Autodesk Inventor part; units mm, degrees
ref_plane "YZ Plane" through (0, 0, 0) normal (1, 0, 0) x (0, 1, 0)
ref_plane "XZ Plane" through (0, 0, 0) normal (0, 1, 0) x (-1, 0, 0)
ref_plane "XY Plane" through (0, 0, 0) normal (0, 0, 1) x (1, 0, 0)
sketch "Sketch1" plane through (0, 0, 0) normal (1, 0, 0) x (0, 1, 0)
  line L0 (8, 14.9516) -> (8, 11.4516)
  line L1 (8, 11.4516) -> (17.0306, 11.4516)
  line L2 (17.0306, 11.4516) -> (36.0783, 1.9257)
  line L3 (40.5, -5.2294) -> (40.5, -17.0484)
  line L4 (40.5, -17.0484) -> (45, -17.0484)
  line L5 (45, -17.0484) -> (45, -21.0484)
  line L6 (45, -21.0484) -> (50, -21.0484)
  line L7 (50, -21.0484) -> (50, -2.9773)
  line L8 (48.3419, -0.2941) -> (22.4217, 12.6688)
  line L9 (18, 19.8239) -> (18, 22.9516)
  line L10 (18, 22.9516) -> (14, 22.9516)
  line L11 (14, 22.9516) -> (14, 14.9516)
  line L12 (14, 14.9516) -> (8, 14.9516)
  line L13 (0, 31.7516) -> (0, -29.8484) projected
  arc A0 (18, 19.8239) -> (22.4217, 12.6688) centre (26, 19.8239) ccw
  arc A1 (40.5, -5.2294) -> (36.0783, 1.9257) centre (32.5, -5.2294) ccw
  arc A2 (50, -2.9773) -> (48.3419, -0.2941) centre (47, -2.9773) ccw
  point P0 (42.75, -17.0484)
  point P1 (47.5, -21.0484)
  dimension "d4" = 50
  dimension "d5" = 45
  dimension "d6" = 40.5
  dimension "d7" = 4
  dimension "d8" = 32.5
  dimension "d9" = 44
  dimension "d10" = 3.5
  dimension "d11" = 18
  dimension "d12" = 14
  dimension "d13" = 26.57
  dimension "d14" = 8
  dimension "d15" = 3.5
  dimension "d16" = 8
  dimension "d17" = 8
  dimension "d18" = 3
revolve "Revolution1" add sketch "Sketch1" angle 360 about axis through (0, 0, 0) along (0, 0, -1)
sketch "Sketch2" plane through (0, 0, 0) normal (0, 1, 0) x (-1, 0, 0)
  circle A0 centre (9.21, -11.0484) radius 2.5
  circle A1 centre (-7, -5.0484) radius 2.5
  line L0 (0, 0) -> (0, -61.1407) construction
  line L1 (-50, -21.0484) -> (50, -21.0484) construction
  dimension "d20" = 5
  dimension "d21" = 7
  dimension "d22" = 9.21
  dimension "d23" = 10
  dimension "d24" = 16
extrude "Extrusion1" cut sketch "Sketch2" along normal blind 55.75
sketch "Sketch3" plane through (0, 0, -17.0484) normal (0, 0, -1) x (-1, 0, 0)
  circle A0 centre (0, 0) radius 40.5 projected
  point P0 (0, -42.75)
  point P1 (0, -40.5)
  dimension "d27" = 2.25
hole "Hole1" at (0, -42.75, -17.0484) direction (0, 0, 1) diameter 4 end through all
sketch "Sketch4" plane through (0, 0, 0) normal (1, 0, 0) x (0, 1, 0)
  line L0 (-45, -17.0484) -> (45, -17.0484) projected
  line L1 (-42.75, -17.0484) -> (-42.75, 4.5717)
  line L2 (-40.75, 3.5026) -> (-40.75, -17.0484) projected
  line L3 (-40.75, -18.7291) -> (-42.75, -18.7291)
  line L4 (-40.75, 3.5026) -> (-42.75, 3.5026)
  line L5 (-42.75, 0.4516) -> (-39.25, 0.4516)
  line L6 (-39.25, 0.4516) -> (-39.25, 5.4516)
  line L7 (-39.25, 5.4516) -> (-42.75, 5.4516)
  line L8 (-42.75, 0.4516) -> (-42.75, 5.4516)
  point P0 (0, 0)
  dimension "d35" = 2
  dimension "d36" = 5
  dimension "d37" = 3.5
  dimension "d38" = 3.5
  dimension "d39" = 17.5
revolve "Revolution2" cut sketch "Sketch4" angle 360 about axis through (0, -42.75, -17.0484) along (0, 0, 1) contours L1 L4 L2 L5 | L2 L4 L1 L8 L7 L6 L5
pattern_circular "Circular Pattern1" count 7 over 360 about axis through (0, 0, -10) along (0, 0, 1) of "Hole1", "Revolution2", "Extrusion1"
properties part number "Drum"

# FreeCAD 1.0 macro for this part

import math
import FreeCAD as App
import Part
import Sketcher

V = App.Vector
Q = App.Units.Quantity

doc = App.newDocument("Part")
body = doc.addObject("PartDesign::Body", "Body")

# Sketch on YZ plane
sketch1 = body.newObject("Sketcher::SketchObject", "Sketch")
sketch1.AttachmentSupport = (doc.getObject("YZ_Plane"), [""])
sketch1.MapMode = "FlatFace"
sketch1.addGeometry(Part.LineSegment(V(14, 15, 0), V(8, 15, 0)), False)
sketch1.addGeometry(Part.LineSegment(V(8, 15, 0), V(8, 11.5, 0)), False)
sketch1.addGeometry(Part.LineSegment(V(8, 11.5, 0), V(17, 11.5, 0)), False)
sketch1.addGeometry(Part.LineSegment(V(17, 11.5, 0), V(36.1, 1.9, 0)), False)
sketch1.addGeometry(Part.ArcOfCircle(Part.Circle(V(32.5, -5.2, 0), V(0, 0, 1), 8), math.radians(0), math.radians(63)), False)
sketch1.addGeometry(Part.LineSegment(V(40.5, -5.2, 0), V(40.5, -17, 0)), False)
sketch1.addGeometry(Part.LineSegment(V(40.5, -17, 0), V(45, -17, 0)), False)
sketch1.addGeometry(Part.LineSegment(V(45, -17, 0), V(45, -21, 0)), False)
sketch1.addGeometry(Part.LineSegment(V(45, -21, 0), V(50, -21, 0)), False)
sketch1.addGeometry(Part.LineSegment(V(50, -21, 0), V(50, -3, 0)), False)
sketch1.addGeometry(Part.ArcOfCircle(Part.Circle(V(47, -3, 0), V(0, 0, 1), 3), math.radians(0), math.radians(63)), False)
sketch1.addGeometry(Part.LineSegment(V(48.3, -0.3, 0), V(22.4, 12.7, 0)), False)
sketch1.addGeometry(Part.ArcOfCircle(Part.Circle(V(26, 19.8, 0), V(0, 0, 1), 8), math.radians(180), math.radians(243)), False)
sketch1.addGeometry(Part.LineSegment(V(18, 19.8, 0), V(18, 23, 0)), False)
sketch1.addGeometry(Part.LineSegment(V(18, 23, 0), V(14, 23, 0)), False)
sketch1.addGeometry(Part.LineSegment(V(14, 23, 0), V(14, 15, 0)), False)
sketch1.addConstraint(Sketcher.Constraint("Coincident", 0, 2, 1, 1))
sketch1.addConstraint(Sketcher.Constraint("Coincident", 1, 2, 2, 1))
sketch1.addConstraint(Sketcher.Constraint("Coincident", 2, 2, 3, 1))
sketch1.addConstraint(Sketcher.Constraint("Tangent", 3, 2, 4, 2))
sketch1.addConstraint(Sketcher.Constraint("Tangent", 4, 1, 5, 1))
sketch1.addConstraint(Sketcher.Constraint("Coincident", 5, 2, 6, 1))
sketch1.addConstraint(Sketcher.Constraint("Coincident", 6, 2, 7, 1))
sketch1.addConstraint(Sketcher.Constraint("Coincident", 7, 2, 8, 1))
sketch1.addConstraint(Sketcher.Constraint("Coincident", 8, 2, 9, 1))
sketch1.addConstraint(Sketcher.Constraint("Tangent", 9, 2, 10, 1))
sketch1.addConstraint(Sketcher.Constraint("Tangent", 10, 2, 11, 1))
sketch1.addConstraint(Sketcher.Constraint("Tangent", 11, 2, 12, 2))
sketch1.addConstraint(Sketcher.Constraint("Tangent", 12, 1, 13, 1))
sketch1.addConstraint(Sketcher.Constraint("Coincident", 13, 2, 14, 1))
sketch1.addConstraint(Sketcher.Constraint("Coincident", 14, 2, 15, 1))
sketch1.addConstraint(Sketcher.Constraint("Coincident", 15, 2, 0, 1))
sketch1.addConstraint(Sketcher.Constraint("Horizontal", 0))
sketch1.addConstraint(Sketcher.Constraint("Vertical", 1))
sketch1.addConstraint(Sketcher.Constraint("Horizontal", 2))
sketch1.addConstraint(Sketcher.Constraint("Vertical", 5))
sketch1.addConstraint(Sketcher.Constraint("Horizontal", 6))
sketch1.addConstraint(Sketcher.Constraint("Vertical", 7))
sketch1.addConstraint(Sketcher.Constraint("Horizontal", 8))
sketch1.addConstraint(Sketcher.Constraint("Vertical", 9))
sketch1.addConstraint(Sketcher.Constraint("Vertical", 13))
sketch1.addConstraint(Sketcher.Constraint("Horizontal", 14))
sketch1.addConstraint(Sketcher.Constraint("Vertical", 15))
sketch1.addConstraint(Sketcher.Constraint("Equal", 4, 12))
sketch1.addConstraint(Sketcher.Constraint("Parallel", 3, 11))
sketch1.addConstraint(Sketcher.Constraint("Equal", 14, 7))
sketch1.addConstraint(Sketcher.Constraint("Radius", 4, Q("8 mm")))
sketch1.addConstraint(Sketcher.Constraint("Radius", 10, Q("3 mm")))
sketch1.addConstraint(Sketcher.Constraint("DistanceX", 14, 2, 14, 1, Q("4 mm")))
sketch1.addConstraint(Sketcher.Constraint("DistanceY", 15, 2, 15, 1, Q("8 mm")))
sketch1.addConstraint(Sketcher.Constraint("DistanceY", 1, 2, 1, 1, Q("3.5 mm")))
sketch1.addConstraint(Sketcher.Constraint("DistanceX", -1, 1, 0, 2, Q("8 mm")))
sketch1.addConstraint(Sketcher.Constraint("DistanceX", -1, 1, 6, 2, Q("45 mm")))
sketch1.addConstraint(Sketcher.Constraint("DistanceX", -1, 1, 8, 2, Q("50 mm")))
sketch1.addConstraint(Sketcher.Constraint("DistanceX", -1, 1, 12, 1, Q("18 mm")))
sketch1.addConstraint(Sketcher.Constraint("DistanceX", -1, 1, 4, 3, Q("32.5 mm")))
sketch1.addConstraint(Sketcher.Constraint("Angle", 3, Q("-26.57 deg")))
sketch1.addConstraint(Sketcher.Constraint("DistanceY", 5, 2, 2, 2, Q("28.5 mm")))
sketch1.addConstraint(Sketcher.Constraint("DistanceY", 5, 2, 5, 1, Q("11.819 mm")))
sketch1.addConstraint(Sketcher.Constraint("DistanceY", 9, 1, 9, 2, Q("18.071 mm")))
sketch1.addConstraint(Sketcher.Constraint("DistanceY", -1, 1, 12, 3, Q("19.824 mm")))
revolution = body.newObject("PartDesign::Revolution", "Revolution")
revolution.Profile = sketch1
revolution.ReferenceAxis = (sketch1, ["V_Axis"])
revolution.Angle = 360

# Sketch on XZ plane
sketch2 = body.newObject("Sketcher::SketchObject", "Sketch001")
sketch2.AttachmentSupport = (doc.getObject("XZ_Plane"), [""])
sketch2.MapMode = "FlatFace"
sketch2.addGeometry(Part.Circle(V(-9.2, -11, 0), V(0, 0, 1), 2.5), False)
sketch2.addGeometry(Part.Circle(V(7, -5, 0), V(0, 0, 1), 2.5), False)
sketch2.addConstraint(Sketcher.Constraint("Equal", 0, 1))
sketch2.addConstraint(Sketcher.Constraint("Diameter", 0, Q("5 mm")))
sketch2.addConstraint(Sketcher.Constraint("DistanceX", -1, 1, 1, 3, Q("7 mm")))
sketch2.addConstraint(Sketcher.Constraint("DistanceX", 0, 3, -1, 1, Q("9.21 mm")))
sketch2.addConstraint(Sketcher.Constraint("DistanceY", 0, 3, 1, 3, Q("6 mm")))
sketch2.addConstraint(Sketcher.Constraint("DistanceY", 0, 3, -1, 1, Q("11.0484 mm")))
pocket1 = body.newObject("PartDesign::Pocket", "Pocket")
pocket1.Profile = sketch2
pocket1.Length = 55.75

# Sketch on XY plane
sketch3 = body.newObject("Sketcher::SketchObject", "Sketch002")
sketch3.AttachmentSupport = (doc.getObject("XY_Plane"), [""])
sketch3.MapMode = "FlatFace"
sketch3.AttachmentOffset = App.Placement(V(0, 0, -17.0484), App.Rotation())
sketch3.addGeometry(Part.Circle(V(0, -42.8, 0), V(0, 0, 1), 2), False)
sketch3.addConstraint(Sketcher.Constraint("PointOnObject", 0, 3, -2))
sketch3.addConstraint(Sketcher.Constraint("Diameter", 0, Q("4 mm")))
sketch3.addConstraint(Sketcher.Constraint("DistanceY", 0, 3, -1, 1, Q("42.75 mm")))
doc.recompute()
hole = body.newObject("PartDesign::Hole", "Hole")
hole.Profile = sketch3
hole.ThreadType = "None"
hole.Diameter = 4
hole.DepthType = "ThroughAll"
hole.Reversed = True

# Sketch on YZ plane
sketch4 = body.newObject("Sketcher::SketchObject", "Sketch003")
sketch4.AttachmentSupport = (doc.getObject("YZ_Plane"), [""])
sketch4.MapMode = "FlatFace"
sketch4.addGeometry(Part.LineSegment(V(-42.8, 0.5, 0), V(-39.2, 0.5, 0)), False)
sketch4.addGeometry(Part.LineSegment(V(-39.2, 0.5, 0), V(-39.2, 5.5, 0)), False)
sketch4.addGeometry(Part.LineSegment(V(-39.2, 5.5, 0), V(-42.8, 5.5, 0)), False)
sketch4.addGeometry(Part.LineSegment(V(-42.8, 5.5, 0), V(-42.8, 0.5, 0)), False)
sketch4.addGeometry(Part.LineSegment(V(-42.8, 0.5, 0), V(-42.8, 5.5, 0)), True)  # axis
sketch4.addConstraint(Sketcher.Constraint("Coincident", 0, 2, 1, 1))
sketch4.addConstraint(Sketcher.Constraint("Coincident", 1, 2, 2, 1))
sketch4.addConstraint(Sketcher.Constraint("Coincident", 2, 2, 3, 1))
sketch4.addConstraint(Sketcher.Constraint("Coincident", 3, 2, 0, 1))
sketch4.addConstraint(Sketcher.Constraint("Horizontal", 0))
sketch4.addConstraint(Sketcher.Constraint("Vertical", 1))
sketch4.addConstraint(Sketcher.Constraint("Horizontal", 2))
sketch4.addConstraint(Sketcher.Constraint("Vertical", 3))
sketch4.addConstraint(Sketcher.Constraint("Vertical", 4))
sketch4.addConstraint(Sketcher.Constraint("Coincident", 4, 1, 3, 2))
sketch4.addConstraint(Sketcher.Constraint("Horizontal", 1, 2, 4, 2))
sketch4.addConstraint(Sketcher.Constraint("DistanceY", 1, 1, 1, 2, Q("5 mm")))
sketch4.addConstraint(Sketcher.Constraint("DistanceX", 0, 1, 0, 2, Q("3.5 mm")))
sketch4.addConstraint(Sketcher.Constraint("DistanceX", 0, 2, -1, 1, Q("39.25 mm")))
sketch4.addConstraint(Sketcher.Constraint("DistanceY", -1, 1, 0, 2, Q("0.4516 mm")))
groove = body.newObject("PartDesign::Groove", "Groove")
groove.Profile = sketch4
groove.ReferenceAxis = (sketch4, ["Axis0"])
groove.Angle = 360
doc.recompute()

polarpattern = body.newObject("PartDesign::PolarPattern", "PolarPattern")
polarpattern.Originals = [hole, groove, pocket1]
polarpattern.Axis = (doc.getObject("Z_Axis"), [""])
polarpattern.Angle = 360
polarpattern.Occurrences = 7
body.Tip = polarpattern

doc.recompute()
